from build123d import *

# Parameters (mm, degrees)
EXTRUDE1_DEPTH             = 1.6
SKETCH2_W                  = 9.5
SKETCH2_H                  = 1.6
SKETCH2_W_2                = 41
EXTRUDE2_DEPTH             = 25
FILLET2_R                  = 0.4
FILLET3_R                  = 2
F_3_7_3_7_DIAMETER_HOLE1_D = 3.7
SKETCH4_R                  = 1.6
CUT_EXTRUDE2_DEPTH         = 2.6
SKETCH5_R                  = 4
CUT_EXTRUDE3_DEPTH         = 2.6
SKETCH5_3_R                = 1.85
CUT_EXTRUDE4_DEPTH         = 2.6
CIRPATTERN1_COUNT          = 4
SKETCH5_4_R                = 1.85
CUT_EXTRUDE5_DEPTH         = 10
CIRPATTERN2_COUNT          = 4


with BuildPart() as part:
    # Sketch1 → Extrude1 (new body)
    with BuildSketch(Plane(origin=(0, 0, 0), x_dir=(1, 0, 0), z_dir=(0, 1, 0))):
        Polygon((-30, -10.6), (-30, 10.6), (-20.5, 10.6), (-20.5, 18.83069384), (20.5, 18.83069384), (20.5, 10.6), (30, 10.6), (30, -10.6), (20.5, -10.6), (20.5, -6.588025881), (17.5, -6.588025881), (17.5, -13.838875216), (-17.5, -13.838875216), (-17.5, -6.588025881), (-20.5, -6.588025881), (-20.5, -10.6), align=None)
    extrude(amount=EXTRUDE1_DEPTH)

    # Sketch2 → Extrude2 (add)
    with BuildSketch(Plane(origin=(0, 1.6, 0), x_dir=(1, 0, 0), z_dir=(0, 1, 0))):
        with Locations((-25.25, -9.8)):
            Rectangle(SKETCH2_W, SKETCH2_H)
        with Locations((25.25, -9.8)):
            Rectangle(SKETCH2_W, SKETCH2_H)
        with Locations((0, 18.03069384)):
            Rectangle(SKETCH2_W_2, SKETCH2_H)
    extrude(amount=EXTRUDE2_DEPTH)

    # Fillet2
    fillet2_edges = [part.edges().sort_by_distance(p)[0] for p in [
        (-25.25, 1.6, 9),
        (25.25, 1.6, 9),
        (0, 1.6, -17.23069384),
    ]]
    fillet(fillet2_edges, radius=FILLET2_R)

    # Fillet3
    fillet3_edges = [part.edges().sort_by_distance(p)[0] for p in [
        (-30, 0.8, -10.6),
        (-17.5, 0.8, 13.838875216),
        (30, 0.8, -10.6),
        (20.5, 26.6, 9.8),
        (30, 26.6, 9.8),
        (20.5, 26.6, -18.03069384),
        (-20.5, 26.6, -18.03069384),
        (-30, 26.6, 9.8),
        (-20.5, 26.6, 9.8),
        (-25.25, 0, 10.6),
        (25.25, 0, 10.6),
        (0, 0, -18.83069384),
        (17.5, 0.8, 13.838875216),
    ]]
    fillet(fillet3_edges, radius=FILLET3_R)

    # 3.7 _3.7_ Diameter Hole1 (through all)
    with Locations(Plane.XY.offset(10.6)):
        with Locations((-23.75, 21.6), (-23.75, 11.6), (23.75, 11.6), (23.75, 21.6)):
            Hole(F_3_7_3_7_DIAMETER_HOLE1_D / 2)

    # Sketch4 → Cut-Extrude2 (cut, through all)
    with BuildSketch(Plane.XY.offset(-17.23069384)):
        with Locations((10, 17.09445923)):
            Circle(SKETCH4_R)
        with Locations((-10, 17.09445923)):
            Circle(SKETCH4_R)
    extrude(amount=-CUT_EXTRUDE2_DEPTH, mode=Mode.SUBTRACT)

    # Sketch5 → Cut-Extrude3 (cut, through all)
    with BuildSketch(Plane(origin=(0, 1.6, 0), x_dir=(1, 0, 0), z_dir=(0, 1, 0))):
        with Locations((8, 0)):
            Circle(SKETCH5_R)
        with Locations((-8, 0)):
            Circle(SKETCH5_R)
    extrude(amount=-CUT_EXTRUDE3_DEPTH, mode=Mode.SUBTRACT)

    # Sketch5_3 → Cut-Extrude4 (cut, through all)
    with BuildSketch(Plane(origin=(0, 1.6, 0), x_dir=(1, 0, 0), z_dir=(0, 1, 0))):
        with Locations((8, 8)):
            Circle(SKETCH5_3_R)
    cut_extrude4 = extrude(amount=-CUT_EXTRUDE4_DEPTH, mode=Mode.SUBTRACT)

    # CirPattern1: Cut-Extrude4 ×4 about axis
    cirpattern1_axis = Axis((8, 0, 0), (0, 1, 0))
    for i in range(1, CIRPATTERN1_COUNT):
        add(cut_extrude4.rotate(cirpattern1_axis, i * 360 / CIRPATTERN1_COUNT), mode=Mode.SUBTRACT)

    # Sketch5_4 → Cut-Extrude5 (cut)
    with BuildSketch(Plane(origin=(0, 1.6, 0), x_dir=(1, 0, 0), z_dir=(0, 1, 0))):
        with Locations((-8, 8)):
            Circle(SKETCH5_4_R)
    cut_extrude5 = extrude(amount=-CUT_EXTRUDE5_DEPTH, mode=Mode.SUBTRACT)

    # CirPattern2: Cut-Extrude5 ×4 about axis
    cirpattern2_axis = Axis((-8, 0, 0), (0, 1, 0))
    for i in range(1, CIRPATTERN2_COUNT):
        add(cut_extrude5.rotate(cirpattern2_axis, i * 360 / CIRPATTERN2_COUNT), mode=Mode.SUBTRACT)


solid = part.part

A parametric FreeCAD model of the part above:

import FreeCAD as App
import Part
import Sketcher
Q = App.Units.Quantity


def edges_at(feature, points):
    """Names of the edges that pass closest to the given points."""
    edges = feature.Shape.Edges
    near = lambda p: min(range(len(edges)), key=lambda i: edges[i].distToShape(Part.Vertex(*p))[0])
    return sorted({f"Edge{near(p) + 1}" for p in points})


def add_polygon(sketch, points):
    """Adds a closed chain of lines whose ends are joined by coincident constraints."""
    first, n = sketch.GeometryCount, len(points)
    for a, b in zip(points, points[1:] + points[:1]):
        sketch.addGeometry(Part.LineSegment(App.Vector(*a, 0), App.Vector(*b, 0)), False)
    for i in range(n):
        sketch.addConstraint(Sketcher.Constraint("Coincident", first + i, 2, first + (i + 1) % n, 1))

doc = App.newDocument("Part")
body = doc.addObject("PartDesign::Body", "Body")

# Sketch on XZ plane
sketch1 = body.newObject("Sketcher::SketchObject", "Sketch")
sketch1.AttachmentSupport = (doc.getObject("XZ_Plane"), [""])
sketch1.MapMode = "FlatFace"
add_polygon(sketch1, [(-30, -10.6), (-30, 10.6), (-20.5, 10.6), (-20.5, 6.588026), (-17.5, 6.588026), (-17.5, 13.838875), (17.5, 13.838875), (17.5, 6.588026), (20.5, 6.588026), (20.5, 10.6), (30, 10.6), (30, -10.6), (20.5, -10.6), (20.5, -18.830694), (-20.5, -18.830694), (-20.5, -10.6)])  # lines 0-15
sketch1.addConstraint([
    Sketcher.Constraint("Vertical", 0),
    Sketcher.Constraint("Horizontal", 1),
    Sketcher.Constraint("Vertical", 2),
    Sketcher.Constraint("Horizontal", 3),
    Sketcher.Constraint("Vertical", 4),
    Sketcher.Constraint("Horizontal", 5),
    Sketcher.Constraint("Vertical", 6),
    Sketcher.Constraint("Horizontal", 7),
    Sketcher.Constraint("Vertical", 8),
    Sketcher.Constraint("Horizontal", 9),
    Sketcher.Constraint("Vertical", 10),
    Sketcher.Constraint("Horizontal", 11),
    Sketcher.Constraint("Vertical", 12),
    Sketcher.Constraint("Horizontal", 13),
    Sketcher.Constraint("Vertical", 14),
    Sketcher.Constraint("Horizontal", 15),
    Sketcher.Constraint("Symmetric", 0, 2, 10, 2, -1, 1),
    Sketcher.Constraint("Symmetric", 8, 2, 14, 2, -1, 1),
    Sketcher.Constraint("Symmetric", 3, 2, 6, 2, -2),
    Sketcher.Constraint("Symmetric", 1, 2, 8, 2, -2),
    Sketcher.Constraint("Vertical", 8, 2, 11, 2),
    Sketcher.Constraint("DistanceX", 3, 1, 3, 2, Q("3 mm")),
    Sketcher.Constraint("DistanceX", 5, 1, 5, 2, Q("35 mm")),
    Sketcher.Constraint("DistanceX", 1, 1, 1, 2, Q("9.5 mm")),
    Sketcher.Constraint("DistanceY", 0, 1, 0, 2, Q("21.2 mm")),
    Sketcher.Constraint("DistanceY", 4, 1, 4, 2, Q("7.250849 mm")),
    Sketcher.Constraint("DistanceY", 2, 2, 2, 1, Q("4.011974 mm")),
    Sketcher.Constraint("DistanceY", 12, 2, 12, 1, Q("8.230694 mm")),
])
pad1 = body.newObject("PartDesign::Pad", "Pad")
pad1.Profile = sketch1
pad1.Length = 1.6
pad1.Reversed = True

# Sketch on XZ plane
sketch2 = body.newObject("Sketcher::SketchObject", "Sketch001")
sketch2.AttachmentSupport = (doc.getObject("XZ_Plane"), [""])
sketch2.MapMode = "FlatFace"
sketch2.AttachmentOffset = App.Placement(App.Vector(0, 0, -1.6), App.Rotation())
add_polygon(sketch2, [(-30, 9), (-30, 10.6), (-20.5, 10.6), (-20.5, 9)])  # lines 0-3
add_polygon(sketch2, [(20.5, 9), (20.5, 10.6), (30, 10.6), (30, 9)])  # lines 4-7
add_polygon(sketch2, [(-20.5, -18.830694), (-20.5, -17.230694), (20.5, -17.230694), (20.5, -18.830694)])  # lines 8-11
sketch2.addConstraint([
    Sketcher.Constraint("Vertical", 0),
    Sketcher.Constraint("Horizontal", 1),
    Sketcher.Constraint("Vertical", 2),
    Sketcher.Constraint("Horizontal", 3),
    Sketcher.Constraint("Vertical", 4),
    Sketcher.Constraint("Horizontal", 5),
    Sketcher.Constraint("Vertical", 6),
    Sketcher.Constraint("Horizontal", 7),
    Sketcher.Constraint("Vertical", 8),
    Sketcher.Constraint("Horizontal", 9),
    Sketcher.Constraint("Vertical", 10),
    Sketcher.Constraint("Horizontal", 11),
    Sketcher.Constraint("Symmetric", 1, 2, 4, 2, -2),
    Sketcher.Constraint("Symmetric", 3, 2, 6, 2, -2),
    Sketcher.Constraint("Vertical", 2, 2, 8, 2),
    Sketcher.Constraint("Vertical", 7, 2, 9, 2),
    Sketcher.Constraint("Equal", 6, 8),
    Sketcher.Constraint("DistanceX", 9, 1, 9, 2, Q("41 mm")),
    Sketcher.Constraint("DistanceX", 1, 1, 1, 2, Q("9.5 mm")),
    Sketcher.Constraint("DistanceY", 0, 1, 0, 2, Q("1.6 mm")),
    Sketcher.Constraint("DistanceY", -1, 1, 2, 2, Q("9 mm")),
    Sketcher.Constraint("DistanceY", 8, 2, -1, 1, Q("17.230694 mm")),
])
pad2 = body.newObject("PartDesign::Pad", "Pad001")
pad2.Profile = sketch2
pad2.Length = 25
pad2.Reversed = True
doc.recompute()

fillet = body.newObject("PartDesign::Fillet", "Fillet")
fillet.Base = (pad2, edges_at(pad2, [(-25.25, 1.6, 9), (25.25, 1.6, 9), (0, 1.6, -17.231)]))
fillet.Radius = 0.4
doc.recompute()

fillet2 = body.newObject("PartDesign::Fillet", "Fillet001")
fillet2.Base = (fillet, edges_at(fillet, [
    (-30, 0.8, -10.6),
    (-17.5, 0.8, 13.839),
    (30, 0.8, -10.6),
    (20.5, 26.6, 9.8),
    (30, 26.6, 9.8),
    (20.5, 26.6, -18.031),
    (-20.5, 26.6, -18.031),
    (-30, 26.6, 9.8),
    (-20.5, 26.6, 9.8),
    (-25.25, 0, 10.6),
    (25.25, 0, 10.6),
    (0, 0, -18.831),
    (17.5, 0.8, 13.839),
]))
fillet2.Radius = 2

# Sketch on XY plane
sketch3 = body.newObject("Sketcher::SketchObject", "Sketch002")
sketch3.AttachmentSupport = (doc.getObject("XY_Plane"), [""])
sketch3.MapMode = "FlatFace"
sketch3.AttachmentOffset = App.Placement(App.Vector(0, 0, 10.6), App.Rotation())
sketch3.addGeometry([
    Part.Circle(App.Vector(-23.75, 21.6, 0), App.Vector(0, 0, 1), 1.85),
    Part.Circle(App.Vector(-23.75, 11.6, 0), App.Vector(0, 0, 1), 1.85),
    Part.Circle(App.Vector(23.75, 11.6, 0), App.Vector(0, 0, 1), 1.85),
    Part.Circle(App.Vector(23.75, 21.6, 0), App.Vector(0, 0, 1), 1.85),
], False)
sketch3.addConstraint([
    Sketcher.Constraint("Equal", 0, 1),
    Sketcher.Constraint("Equal", 1, 2),
    Sketcher.Constraint("Equal", 2, 3),
    Sketcher.Constraint("Symmetric", 1, 3, 2, 3, -2),
    Sketcher.Constraint("Symmetric", 0, 3, 3, 3, -2),
    Sketcher.Constraint("Vertical", 0, 3, 1, 3),
    Sketcher.Constraint("Diameter", 0, Q("3.7 mm")),
    Sketcher.Constraint("DistanceY", 1, 3, 0, 3, Q("10 mm")),
    Sketcher.Constraint("DistanceY", -1, 1, 0, 3, Q("21.6 mm")),
    Sketcher.Constraint("DistanceX", 1, 3, 2, 3, Q("47.5 mm")),
])
doc.recompute()
hole = body.newObject("PartDesign::Hole", "Hole")
hole.Profile = sketch3
hole.ThreadType = "None"
hole.Diameter = 3.7
hole.DepthType = "ThroughAll"

# Sketch on XY plane
sketch4 = body.newObject("Sketcher::SketchObject", "Sketch003")
sketch4.AttachmentSupport = (doc.getObject("XY_Plane"), [""])
sketch4.MapMode = "FlatFace"
sketch4.AttachmentOffset = App.Placement(App.Vector(0, 0, -17.230694), App.Rotation())
sketch4.addGeometry([
    Part.Circle(App.Vector(10, 17.094459, 0), App.Vector(0, 0, 1), 1.6),
    Part.Circle(App.Vector(-10, 17.094459, 0), App.Vector(0, 0, 1), 1.6),
], False)
sketch4.addConstraint([
    Sketcher.Constraint("Equal", 0, 1),
    Sketcher.Constraint("Symmetric", 0, 3, 1, 3, -2),
    Sketcher.Constraint("Diameter", 0, Q("3.2 mm")),
    Sketcher.Constraint("DistanceX", -1, 1, 0, 3, Q("10 mm")),
    Sketcher.Constraint("DistanceY", -1, 1, 0, 3, Q("17.094459 mm")),
])
pocket1 = body.newObject("PartDesign::Pocket", "Pocket")
pocket1.Profile = sketch4
pocket1.Type = "ThroughAll"

# Sketch on XZ plane
sketch5 = body.newObject("Sketcher::SketchObject", "Sketch004")
sketch5.AttachmentSupport = (doc.getObject("XZ_Plane"), [""])
sketch5.MapMode = "FlatFace"
sketch5.AttachmentOffset = App.Placement(App.Vector(0, 0, -1.6), App.Rotation())
sketch5.addGeometry([
    Part.Circle(App.Vector(8, 0, 0), App.Vector(0, 0, 1), 4),
    Part.Circle(App.Vector(-8, 0, 0), App.Vector(0, 0, 1), 4),
], False)
sketch5.addConstraint([
    Sketcher.Constraint("Equal", 0, 1),
    Sketcher.Constraint("Symmetric", 0, 3, 1, 3, -1, 1),
    Sketcher.Constraint("PointOnObject", 0, 3, -1),
    Sketcher.Constraint("Diameter", 0, Q("8 mm")),
    Sketcher.Constraint("DistanceX", -1, 1, 0, 3, Q("8 mm")),
])
pocket2 = body.newObject("PartDesign::Pocket", "Pocket001")
pocket2.Profile = sketch5
pocket2.Type = "ThroughAll"
pocket2.Reversed = True

# Sketch on XZ plane
sketch6 = body.newObject("Sketcher::SketchObject", "Sketch005")
sketch6.AttachmentSupport = (doc.getObject("XZ_Plane"), [""])
sketch6.MapMode = "FlatFace"
sketch6.AttachmentOffset = App.Placement(App.Vector(0, 0, -1.6), App.Rotation())
sketch6.addGeometry(Part.Circle(App.Vector(8, -8, 0), App.Vector(0, 0, 1), 1.85), False)
sketch6.addConstraint([
    Sketcher.Constraint("Diameter", 0, Q("3.7 mm")),
    Sketcher.Constraint("DistanceX", -1, 1, 0, 3, Q("8 mm")),
    Sketcher.Constraint("DistanceY", 0, 3, -1, 1, Q("8 mm")),
])
pocket3 = body.newObject("PartDesign::Pocket", "Pocket002")
pocket3.Profile = sketch6
pocket3.Type = "ThroughAll"
pocket3.Reversed = True
doc.recompute()

datumline = body.newObject("PartDesign::Line", "DatumLine")
datumline.Placement = App.Placement(App.Vector(8, 0, 0), App.Rotation(App.Vector(0, 0, 1), App.Vector(0, 1, 0)))
polarpattern = body.newObject("PartDesign::PolarPattern", "PolarPattern")
polarpattern.Originals = [pocket3]
polarpattern.Axis = (datumline, [""])
polarpattern.Angle = 360
polarpattern.Occurrences = 4
body.Tip = polarpattern

# Sketch on XZ plane
sketch7 = body.newObject("Sketcher::SketchObject", "Sketch006")
sketch7.AttachmentSupport = (doc.getObject("XZ_Plane"), [""])
sketch7.MapMode = "FlatFace"
sketch7.AttachmentOffset = App.Placement(App.Vector(0, 0, -1.6), App.Rotation())
sketch7.addGeometry(Part.Circle(App.Vector(-8, -8, 0), App.Vector(0, 0, 1), 1.85), False)
sketch7.addConstraint([
    Sketcher.Constraint("Diameter", 0, Q("3.7 mm")),
    Sketcher.Constraint("DistanceX", 0, 3, -1, 1, Q("8 mm")),
    Sketcher.Constraint("DistanceY", 0, 3, -1, 1, Q("8 mm")),
])
pocket4 = body.newObject("PartDesign::Pocket", "Pocket003")
pocket4.Profile = sketch7
pocket4.Length = 10
pocket4.Reversed = True
doc.recompute()

datumline2 = body.newObject("PartDesign::Line", "DatumLine001")
datumline2.Placement = App.Placement(App.Vector(-8, 0, 0), App.Rotation(App.Vector(0, 0, 1), App.Vector(0, 1, 0)))
polarpattern2 = body.newObject("PartDesign::PolarPattern", "PolarPattern001")
polarpattern2.Originals = [pocket4]
polarpattern2.Axis = (datumline2, [""])
polarpattern2.Angle = 360
polarpattern2.Occurrences = 4
body.Tip = polarpattern2

doc.recompute()
